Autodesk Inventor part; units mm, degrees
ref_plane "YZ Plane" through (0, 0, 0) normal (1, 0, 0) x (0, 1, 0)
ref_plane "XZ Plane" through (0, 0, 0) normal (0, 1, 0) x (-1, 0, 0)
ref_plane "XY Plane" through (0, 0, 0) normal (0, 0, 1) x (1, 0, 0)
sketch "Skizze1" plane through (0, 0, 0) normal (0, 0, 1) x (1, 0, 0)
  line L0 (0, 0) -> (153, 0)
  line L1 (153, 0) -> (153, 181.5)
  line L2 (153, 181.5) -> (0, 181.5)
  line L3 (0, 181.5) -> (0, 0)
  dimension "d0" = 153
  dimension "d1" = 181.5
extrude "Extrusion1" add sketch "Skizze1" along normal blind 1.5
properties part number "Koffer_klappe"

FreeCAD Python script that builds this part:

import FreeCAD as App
import Part
import Sketcher

V = App.Vector


def add_polygon(sketch, points):
    """Adds a closed chain of lines whose ends are joined by coincident constraints."""
    first, n = sketch.GeometryCount, len(points)
    for a, b in zip(points, points[1:] + points[:1]):
        sketch.addGeometry(Part.LineSegment(App.Vector(*a, 0), App.Vector(*b, 0)), False)
    for i in range(n):
        sketch.addConstraint(Sketcher.Constraint("Coincident", first + i, 2, first + (i + 1) % n, 1))

doc = App.newDocument("Part")
body = doc.addObject("PartDesign::Body", "Body")

# Sketch on XY plane
sketch1 = doc.addObject("Sketcher::SketchObject", "Sketch")
body.addObject(sketch1)
sketch1.AttachmentSupport = (doc.XY_Plane, [""])
sketch1.MapMode = "FlatFace"
add_polygon(sketch1, [(0, 182), (0, 0), (153, 0), (153, 182)])  # lines 0-3
sketch1.addConstraint(Sketcher.Constraint("Vertical", 0))
sketch1.addConstraint(Sketcher.Constraint("Horizontal", 1))
sketch1.addConstraint(Sketcher.Constraint("Vertical", 2))
sketch1.addConstraint(Sketcher.Constraint("Horizontal", 3))
sketch1.addConstraint(Sketcher.Constraint("Coincident", 0, 2, -1, 1))
sketch1.addConstraint(Sketcher.Constraint("DistanceX", 1, 1, 1, 2, 153.0))
sketch1.addConstraint(Sketcher.Constraint("DistanceY", 0, 2, 0, 1, 181.5))
pad1 = doc.addObject("PartDesign::Pad", "Pad")
body.addObject(pad1)
pad1.Profile = sketch1
pad1.Length = 1.5

doc.recompute()
